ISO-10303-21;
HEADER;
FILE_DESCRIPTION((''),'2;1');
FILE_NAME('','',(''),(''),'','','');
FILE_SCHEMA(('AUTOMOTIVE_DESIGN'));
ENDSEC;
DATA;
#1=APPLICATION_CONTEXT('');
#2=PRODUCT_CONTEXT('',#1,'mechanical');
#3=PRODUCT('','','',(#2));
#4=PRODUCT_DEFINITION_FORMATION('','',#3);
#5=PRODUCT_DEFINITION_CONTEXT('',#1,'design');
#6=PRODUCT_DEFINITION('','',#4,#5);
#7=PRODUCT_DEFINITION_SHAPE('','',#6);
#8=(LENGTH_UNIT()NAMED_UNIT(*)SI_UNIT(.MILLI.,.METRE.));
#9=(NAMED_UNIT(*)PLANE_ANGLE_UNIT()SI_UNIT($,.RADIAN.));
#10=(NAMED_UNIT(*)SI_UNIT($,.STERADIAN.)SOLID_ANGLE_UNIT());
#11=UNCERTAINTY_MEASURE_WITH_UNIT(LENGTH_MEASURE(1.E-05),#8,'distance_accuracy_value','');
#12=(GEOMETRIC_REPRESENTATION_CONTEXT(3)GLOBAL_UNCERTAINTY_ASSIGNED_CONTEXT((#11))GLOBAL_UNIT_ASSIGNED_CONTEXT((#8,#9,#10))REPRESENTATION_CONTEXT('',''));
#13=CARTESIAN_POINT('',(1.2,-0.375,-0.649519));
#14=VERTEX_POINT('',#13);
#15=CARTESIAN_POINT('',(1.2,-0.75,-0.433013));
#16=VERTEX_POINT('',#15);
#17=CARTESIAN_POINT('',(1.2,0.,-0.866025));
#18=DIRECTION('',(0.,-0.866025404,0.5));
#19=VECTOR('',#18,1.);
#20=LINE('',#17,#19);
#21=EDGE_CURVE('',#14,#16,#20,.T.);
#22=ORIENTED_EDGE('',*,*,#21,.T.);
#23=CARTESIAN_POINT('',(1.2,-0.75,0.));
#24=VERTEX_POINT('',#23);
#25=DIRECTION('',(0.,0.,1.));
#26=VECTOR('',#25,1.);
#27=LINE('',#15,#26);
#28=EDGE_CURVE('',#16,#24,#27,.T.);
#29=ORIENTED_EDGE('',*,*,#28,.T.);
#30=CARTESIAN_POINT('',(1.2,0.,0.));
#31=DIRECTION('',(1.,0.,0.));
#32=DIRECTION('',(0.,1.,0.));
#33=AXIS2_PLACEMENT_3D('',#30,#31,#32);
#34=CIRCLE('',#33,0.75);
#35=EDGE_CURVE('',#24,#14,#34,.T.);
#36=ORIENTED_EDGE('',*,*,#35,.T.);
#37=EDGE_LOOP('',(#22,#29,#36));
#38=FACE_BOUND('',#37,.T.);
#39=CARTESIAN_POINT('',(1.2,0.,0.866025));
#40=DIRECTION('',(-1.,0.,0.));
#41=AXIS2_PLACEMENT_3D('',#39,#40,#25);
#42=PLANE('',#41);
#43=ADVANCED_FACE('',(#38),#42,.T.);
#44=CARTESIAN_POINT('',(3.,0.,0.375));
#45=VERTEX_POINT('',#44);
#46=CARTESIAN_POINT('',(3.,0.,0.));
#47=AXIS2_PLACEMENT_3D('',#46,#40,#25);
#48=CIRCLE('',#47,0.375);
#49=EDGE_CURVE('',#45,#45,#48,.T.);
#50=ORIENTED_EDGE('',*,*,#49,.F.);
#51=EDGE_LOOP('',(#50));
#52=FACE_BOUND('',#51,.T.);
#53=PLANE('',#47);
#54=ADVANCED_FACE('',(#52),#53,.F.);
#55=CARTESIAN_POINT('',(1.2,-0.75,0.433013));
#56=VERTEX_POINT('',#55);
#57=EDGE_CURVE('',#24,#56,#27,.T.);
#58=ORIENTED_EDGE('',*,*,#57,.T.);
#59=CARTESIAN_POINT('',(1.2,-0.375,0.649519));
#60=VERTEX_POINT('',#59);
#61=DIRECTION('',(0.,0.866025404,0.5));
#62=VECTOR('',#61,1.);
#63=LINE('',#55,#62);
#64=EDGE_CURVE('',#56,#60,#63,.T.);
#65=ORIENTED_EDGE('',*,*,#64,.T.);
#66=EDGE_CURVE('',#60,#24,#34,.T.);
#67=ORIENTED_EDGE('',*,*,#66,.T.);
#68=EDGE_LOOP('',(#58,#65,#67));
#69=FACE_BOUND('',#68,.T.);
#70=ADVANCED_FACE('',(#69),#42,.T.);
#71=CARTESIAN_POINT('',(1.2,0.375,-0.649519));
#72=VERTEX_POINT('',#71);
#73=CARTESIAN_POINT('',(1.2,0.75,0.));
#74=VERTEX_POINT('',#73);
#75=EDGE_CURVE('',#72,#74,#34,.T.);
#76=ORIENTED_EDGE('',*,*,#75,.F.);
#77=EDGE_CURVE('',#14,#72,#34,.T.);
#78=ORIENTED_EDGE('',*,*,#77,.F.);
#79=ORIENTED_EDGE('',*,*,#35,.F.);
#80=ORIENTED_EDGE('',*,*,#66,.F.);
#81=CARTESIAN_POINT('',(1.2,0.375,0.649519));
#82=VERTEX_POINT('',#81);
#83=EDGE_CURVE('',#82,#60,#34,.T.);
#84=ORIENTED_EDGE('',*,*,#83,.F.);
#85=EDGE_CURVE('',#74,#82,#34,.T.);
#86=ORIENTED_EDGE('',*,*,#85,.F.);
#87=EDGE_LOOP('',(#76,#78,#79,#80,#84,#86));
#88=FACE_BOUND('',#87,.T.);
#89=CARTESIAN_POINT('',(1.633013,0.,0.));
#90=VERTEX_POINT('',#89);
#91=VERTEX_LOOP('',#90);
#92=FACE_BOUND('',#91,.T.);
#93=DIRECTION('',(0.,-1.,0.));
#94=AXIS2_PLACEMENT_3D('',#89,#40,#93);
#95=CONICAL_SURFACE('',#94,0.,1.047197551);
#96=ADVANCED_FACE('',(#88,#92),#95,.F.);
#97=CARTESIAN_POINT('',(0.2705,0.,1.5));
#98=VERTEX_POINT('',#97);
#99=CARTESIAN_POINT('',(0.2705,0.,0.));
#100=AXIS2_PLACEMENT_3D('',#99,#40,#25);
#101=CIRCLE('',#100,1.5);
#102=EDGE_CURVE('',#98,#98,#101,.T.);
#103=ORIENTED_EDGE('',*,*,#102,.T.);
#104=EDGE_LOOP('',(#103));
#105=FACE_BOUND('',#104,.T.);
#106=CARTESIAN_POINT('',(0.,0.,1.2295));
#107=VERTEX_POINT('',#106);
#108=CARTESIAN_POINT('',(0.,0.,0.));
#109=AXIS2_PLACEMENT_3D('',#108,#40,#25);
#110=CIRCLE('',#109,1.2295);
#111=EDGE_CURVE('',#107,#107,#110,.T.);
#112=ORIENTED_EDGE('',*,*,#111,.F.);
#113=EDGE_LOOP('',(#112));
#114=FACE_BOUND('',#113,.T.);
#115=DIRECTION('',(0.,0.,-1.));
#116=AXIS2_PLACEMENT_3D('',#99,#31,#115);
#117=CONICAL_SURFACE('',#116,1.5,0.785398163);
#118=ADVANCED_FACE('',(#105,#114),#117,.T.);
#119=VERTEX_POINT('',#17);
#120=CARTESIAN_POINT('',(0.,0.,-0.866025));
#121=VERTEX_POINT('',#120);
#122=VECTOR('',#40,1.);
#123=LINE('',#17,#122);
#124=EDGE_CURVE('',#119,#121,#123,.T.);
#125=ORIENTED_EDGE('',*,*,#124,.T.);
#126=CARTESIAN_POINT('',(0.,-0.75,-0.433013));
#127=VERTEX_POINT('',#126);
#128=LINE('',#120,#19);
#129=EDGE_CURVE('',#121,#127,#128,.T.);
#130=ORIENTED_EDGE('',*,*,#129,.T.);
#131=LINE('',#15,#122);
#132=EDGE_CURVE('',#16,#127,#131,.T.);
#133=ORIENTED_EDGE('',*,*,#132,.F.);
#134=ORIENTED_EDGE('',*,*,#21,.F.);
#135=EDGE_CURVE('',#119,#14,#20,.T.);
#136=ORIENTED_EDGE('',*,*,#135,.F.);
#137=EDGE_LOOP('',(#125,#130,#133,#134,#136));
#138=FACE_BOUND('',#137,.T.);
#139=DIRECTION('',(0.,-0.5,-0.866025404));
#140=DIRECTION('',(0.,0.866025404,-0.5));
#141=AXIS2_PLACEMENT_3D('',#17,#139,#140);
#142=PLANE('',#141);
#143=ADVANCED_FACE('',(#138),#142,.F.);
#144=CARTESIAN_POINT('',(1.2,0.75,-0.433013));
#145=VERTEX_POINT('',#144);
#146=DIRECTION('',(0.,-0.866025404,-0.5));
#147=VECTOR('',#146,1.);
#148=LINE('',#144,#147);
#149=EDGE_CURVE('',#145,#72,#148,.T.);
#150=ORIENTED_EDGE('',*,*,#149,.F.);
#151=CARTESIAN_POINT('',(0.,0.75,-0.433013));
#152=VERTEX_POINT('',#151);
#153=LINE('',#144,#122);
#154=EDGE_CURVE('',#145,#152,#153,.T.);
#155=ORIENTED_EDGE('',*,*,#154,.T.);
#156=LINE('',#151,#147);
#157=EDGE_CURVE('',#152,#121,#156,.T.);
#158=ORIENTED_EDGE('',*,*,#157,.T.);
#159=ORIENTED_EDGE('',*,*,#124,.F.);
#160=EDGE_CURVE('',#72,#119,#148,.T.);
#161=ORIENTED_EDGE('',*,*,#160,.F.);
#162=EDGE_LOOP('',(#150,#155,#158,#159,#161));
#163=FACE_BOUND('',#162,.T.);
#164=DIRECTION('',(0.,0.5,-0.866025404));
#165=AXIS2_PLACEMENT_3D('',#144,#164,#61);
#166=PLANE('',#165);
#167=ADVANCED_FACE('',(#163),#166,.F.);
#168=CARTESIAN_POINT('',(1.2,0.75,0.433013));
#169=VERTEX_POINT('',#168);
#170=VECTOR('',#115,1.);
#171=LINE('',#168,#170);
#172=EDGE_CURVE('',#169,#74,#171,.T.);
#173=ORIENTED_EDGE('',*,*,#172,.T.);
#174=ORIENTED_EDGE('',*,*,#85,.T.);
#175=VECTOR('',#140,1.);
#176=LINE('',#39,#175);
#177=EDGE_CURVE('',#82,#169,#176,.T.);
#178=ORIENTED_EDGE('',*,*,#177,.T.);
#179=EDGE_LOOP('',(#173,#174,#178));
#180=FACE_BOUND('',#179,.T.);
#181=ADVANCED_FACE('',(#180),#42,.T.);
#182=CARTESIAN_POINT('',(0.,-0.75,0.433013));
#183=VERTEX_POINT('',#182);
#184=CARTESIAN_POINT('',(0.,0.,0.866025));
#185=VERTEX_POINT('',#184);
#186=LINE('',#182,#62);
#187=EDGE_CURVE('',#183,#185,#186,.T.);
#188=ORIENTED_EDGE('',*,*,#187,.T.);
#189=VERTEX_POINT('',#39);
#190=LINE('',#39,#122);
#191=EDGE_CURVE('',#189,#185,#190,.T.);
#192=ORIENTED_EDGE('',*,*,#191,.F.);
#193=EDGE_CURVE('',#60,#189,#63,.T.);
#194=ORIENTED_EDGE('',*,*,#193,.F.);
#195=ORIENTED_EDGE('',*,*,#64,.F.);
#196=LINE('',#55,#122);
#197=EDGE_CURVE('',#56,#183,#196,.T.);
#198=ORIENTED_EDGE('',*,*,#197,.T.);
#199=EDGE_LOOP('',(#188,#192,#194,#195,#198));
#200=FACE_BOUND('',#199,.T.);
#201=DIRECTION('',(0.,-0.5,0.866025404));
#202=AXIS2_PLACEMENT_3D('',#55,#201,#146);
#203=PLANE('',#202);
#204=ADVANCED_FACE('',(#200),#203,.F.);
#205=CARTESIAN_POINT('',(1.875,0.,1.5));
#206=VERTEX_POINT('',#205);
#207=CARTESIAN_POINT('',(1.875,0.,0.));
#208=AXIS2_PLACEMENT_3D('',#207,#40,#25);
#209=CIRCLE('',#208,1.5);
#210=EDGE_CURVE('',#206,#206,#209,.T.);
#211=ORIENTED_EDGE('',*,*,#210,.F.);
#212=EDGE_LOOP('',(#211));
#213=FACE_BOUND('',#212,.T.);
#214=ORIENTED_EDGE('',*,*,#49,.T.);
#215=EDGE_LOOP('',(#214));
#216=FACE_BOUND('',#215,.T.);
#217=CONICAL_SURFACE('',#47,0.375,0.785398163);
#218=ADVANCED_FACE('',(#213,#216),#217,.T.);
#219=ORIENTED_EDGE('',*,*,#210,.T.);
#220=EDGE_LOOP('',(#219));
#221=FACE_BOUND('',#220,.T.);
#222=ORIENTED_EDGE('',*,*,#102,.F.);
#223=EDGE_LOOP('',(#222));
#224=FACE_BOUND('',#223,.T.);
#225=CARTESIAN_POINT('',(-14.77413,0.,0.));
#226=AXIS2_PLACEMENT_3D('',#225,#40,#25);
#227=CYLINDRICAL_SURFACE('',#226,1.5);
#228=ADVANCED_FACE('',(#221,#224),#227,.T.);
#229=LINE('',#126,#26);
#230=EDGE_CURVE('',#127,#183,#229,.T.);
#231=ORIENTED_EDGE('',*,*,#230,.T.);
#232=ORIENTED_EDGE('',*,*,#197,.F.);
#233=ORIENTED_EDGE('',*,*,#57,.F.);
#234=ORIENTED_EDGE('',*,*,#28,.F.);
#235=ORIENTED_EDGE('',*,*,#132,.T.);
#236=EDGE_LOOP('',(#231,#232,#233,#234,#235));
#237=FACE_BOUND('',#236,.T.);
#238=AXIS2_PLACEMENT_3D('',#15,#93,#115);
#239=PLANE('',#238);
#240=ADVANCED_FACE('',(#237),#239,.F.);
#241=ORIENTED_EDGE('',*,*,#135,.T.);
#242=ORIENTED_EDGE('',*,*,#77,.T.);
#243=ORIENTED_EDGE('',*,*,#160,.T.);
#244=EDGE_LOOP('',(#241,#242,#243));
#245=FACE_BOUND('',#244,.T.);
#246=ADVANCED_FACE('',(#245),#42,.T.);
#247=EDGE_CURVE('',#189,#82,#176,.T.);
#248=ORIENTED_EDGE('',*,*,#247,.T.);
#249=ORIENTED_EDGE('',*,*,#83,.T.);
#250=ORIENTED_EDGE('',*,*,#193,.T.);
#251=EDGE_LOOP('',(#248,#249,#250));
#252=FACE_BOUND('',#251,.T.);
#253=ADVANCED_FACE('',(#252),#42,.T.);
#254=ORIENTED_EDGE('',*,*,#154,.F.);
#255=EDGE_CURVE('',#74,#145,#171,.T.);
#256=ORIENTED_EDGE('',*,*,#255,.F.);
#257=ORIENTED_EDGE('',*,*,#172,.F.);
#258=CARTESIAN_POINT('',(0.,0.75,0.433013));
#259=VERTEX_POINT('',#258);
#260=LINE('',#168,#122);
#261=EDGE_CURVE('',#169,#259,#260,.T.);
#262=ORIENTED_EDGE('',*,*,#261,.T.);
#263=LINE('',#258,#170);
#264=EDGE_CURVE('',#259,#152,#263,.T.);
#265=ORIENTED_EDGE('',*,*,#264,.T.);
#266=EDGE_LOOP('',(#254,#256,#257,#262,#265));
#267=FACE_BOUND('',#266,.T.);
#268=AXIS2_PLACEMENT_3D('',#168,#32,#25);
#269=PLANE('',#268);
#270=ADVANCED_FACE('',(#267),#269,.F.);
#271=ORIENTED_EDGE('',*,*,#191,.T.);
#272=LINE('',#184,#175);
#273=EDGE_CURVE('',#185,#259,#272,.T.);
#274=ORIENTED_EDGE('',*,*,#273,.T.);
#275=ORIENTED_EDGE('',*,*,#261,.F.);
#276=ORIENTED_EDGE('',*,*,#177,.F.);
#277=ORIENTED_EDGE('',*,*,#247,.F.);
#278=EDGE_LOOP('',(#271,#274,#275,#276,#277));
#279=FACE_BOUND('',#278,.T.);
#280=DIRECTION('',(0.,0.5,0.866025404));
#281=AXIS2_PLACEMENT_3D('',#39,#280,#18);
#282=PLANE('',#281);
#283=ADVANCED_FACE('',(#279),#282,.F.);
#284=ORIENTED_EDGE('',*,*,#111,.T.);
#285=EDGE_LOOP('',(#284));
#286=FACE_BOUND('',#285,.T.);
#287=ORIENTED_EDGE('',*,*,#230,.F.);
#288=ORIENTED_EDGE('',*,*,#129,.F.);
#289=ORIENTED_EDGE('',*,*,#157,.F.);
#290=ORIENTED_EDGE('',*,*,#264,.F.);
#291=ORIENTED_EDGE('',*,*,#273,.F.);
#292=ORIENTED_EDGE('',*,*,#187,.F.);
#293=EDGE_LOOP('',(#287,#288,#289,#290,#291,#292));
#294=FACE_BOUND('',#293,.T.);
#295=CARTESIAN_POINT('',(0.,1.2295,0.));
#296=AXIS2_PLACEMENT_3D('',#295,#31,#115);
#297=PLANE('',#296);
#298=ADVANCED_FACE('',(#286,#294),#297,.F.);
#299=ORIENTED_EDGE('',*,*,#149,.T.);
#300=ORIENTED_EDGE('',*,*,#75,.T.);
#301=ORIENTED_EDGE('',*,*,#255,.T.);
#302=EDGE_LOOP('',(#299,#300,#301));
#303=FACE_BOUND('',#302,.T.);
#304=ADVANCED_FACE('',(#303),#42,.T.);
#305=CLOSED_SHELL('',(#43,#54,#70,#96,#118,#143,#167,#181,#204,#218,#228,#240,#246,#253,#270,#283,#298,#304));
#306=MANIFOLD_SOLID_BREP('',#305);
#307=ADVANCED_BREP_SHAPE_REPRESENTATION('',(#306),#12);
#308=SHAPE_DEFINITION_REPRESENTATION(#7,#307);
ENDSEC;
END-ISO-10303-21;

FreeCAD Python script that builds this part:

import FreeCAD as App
import Part
import Sketcher

V = App.Vector
Q = App.Units.Quantity


def add_polygon(sketch, points):
    """Adds a closed chain of lines whose ends are joined by coincident constraints."""
    first, n = sketch.GeometryCount, len(points)
    for a, b in zip(points, points[1:] + points[:1]):
        sketch.addGeometry(Part.LineSegment(App.Vector(*a, 0), App.Vector(*b, 0)), False)
    for i in range(n):
        sketch.addConstraint(Sketcher.Constraint("Coincident", first + i, 2, first + (i + 1) % n, 1))

doc = App.newDocument("Part")
body = doc.addObject("PartDesign::Body", "Body")

# Sketch on XY plane
sketch1 = body.newObject("Sketcher::SketchObject", "Sketch")
sketch1.AttachmentSupport = (doc.getObject("XY_Plane"), [""])
sketch1.MapMode = "FlatFace"
add_polygon(sketch1, [(0, 0), (3, 0), (3, 0.38), (1.88, 1.5), (0.27, 1.5), (0, 1.23)])  # lines 0-5
sketch1.addConstraint(Sketcher.Constraint("Horizontal", 0))
sketch1.addConstraint(Sketcher.Constraint("Vertical", 1))
sketch1.addConstraint(Sketcher.Constraint("Horizontal", 3))
sketch1.addConstraint(Sketcher.Constraint("Vertical", 5))
sketch1.addConstraint(Sketcher.Constraint("Coincident", 5, 2, -1, 1))
sketch1.addConstraint(Sketcher.Constraint("Perpendicular", 2, 4))
sketch1.addConstraint(Sketcher.Constraint("DistanceX", 0, 1, 0, 2, 3.0))
sketch1.addConstraint(Sketcher.Constraint("Angle", 2, Q("135 deg")))
sketch1.addConstraint(Sketcher.Constraint("DistanceY", -1, 1, 2, 2, 1.5))
sketch1.addConstraint(Sketcher.Constraint("DistanceY", 1, 1, 1, 2, 0.375))
sketch1.addConstraint(Sketcher.Constraint("DistanceX", 3, 2, 3, 1, 1.6045))
revolution = body.newObject("PartDesign::Revolution", "Revolution")
revolution.Profile = sketch1
revolution.ReferenceAxis = (sketch1, ["H_Axis"])
revolution.Angle = 360

# Sketch on YZ plane
sketch2 = body.newObject("Sketcher::SketchObject", "Sketch001")
sketch2.AttachmentSupport = (doc.getObject("YZ_Plane"), [""])
sketch2.MapMode = "FlatFace"
add_polygon(sketch2, [(0, 0.9), (0.8, 0.4), (0.8, -0.4), (0, -0.9), (-0.8, -0.4), (-0.8, 0.4)])  # lines 0-5
sketch2.addConstraint(Sketcher.Constraint("Vertical", 1))
sketch2.addConstraint(Sketcher.Constraint("Vertical", 4))
sketch2.addConstraint(Sketcher.Constraint("Symmetric", 0, 2, 3, 2, -1, 1))
sketch2.addConstraint(Sketcher.Constraint("Symmetric", 2, 2, 5, 2, -1, 1))
sketch2.addConstraint(Sketcher.Constraint("PointOnObject", 2, 2, -2))
sketch2.addConstraint(Sketcher.Constraint("Parallel", 2, 5))
sketch2.addConstraint(Sketcher.Constraint("Horizontal", 1, 2, 3, 2))
sketch2.addConstraint(Sketcher.Constraint("Angle", 0, Q("-30 deg")))
sketch2.addConstraint(Sketcher.Constraint("DistanceX", 3, 2, 1, 2, 1.5))
sketch2.addConstraint(Sketcher.Constraint("DistanceY", 1, 2, 1, 1, 0.866025))
pocket1 = body.newObject("PartDesign::Pocket", "Pocket")
pocket1.Profile = sketch2
pocket1.Length = 1.2
pocket1.Reversed = True

# Sketch on XY plane
sketch3 = body.newObject("Sketcher::SketchObject", "Sketch002")
sketch3.AttachmentSupport = (doc.getObject("XY_Plane"), [""])
sketch3.MapMode = "FlatFace"
add_polygon(sketch3, [(1.63, 0), (1.2, 0.75), (1.2, 0)])  # lines 0-2
sketch3.addConstraint(Sketcher.Constraint("Vertical", 1))
sketch3.addConstraint(Sketcher.Constraint("Horizontal", 2))
sketch3.addConstraint(Sketcher.Constraint("PointOnObject", 1, 2, -1))
sketch3.addConstraint(Sketcher.Constraint("Angle", 0, Q("120 deg")))
sketch3.addConstraint(Sketcher.Constraint("DistanceY", 1, 2, 1, 1, 0.75))
sketch3.addConstraint(Sketcher.Constraint("DistanceX", -1, 1, 0, 2, 1.2))
groove = body.newObject("PartDesign::Groove", "Groove")
groove.Profile = sketch3
groove.ReferenceAxis = (sketch3, ["H_Axis"])
groove.Angle = 360

doc.recompute()
